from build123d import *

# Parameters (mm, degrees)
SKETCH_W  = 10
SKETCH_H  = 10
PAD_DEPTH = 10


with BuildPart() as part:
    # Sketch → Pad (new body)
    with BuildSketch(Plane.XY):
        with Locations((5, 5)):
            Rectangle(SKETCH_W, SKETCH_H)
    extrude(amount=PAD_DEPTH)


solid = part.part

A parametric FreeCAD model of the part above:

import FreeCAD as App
import Part
import Sketcher

V = App.Vector


def add_polygon(sketch, points):
    """Adds a closed chain of lines whose ends are joined by coincident constraints."""
    first, n = sketch.GeometryCount, len(points)
    for a, b in zip(points, points[1:] + points[:1]):
        sketch.addGeometry(Part.LineSegment(App.Vector(*a, 0), App.Vector(*b, 0)), False)
    for i in range(n):
        sketch.addConstraint(Sketcher.Constraint("Coincident", first + i, 2, first + (i + 1) % n, 1))

doc = App.newDocument("Part")
body = doc.addObject("PartDesign::Body", "Body")

sketch1 = body.newObject("Sketcher::SketchObject", "Sketch")
sketch1.AttachmentSupport = (doc.getObject("XY_Plane"), [""])
sketch1.MapMode = "FlatFace"
add_polygon(sketch1, [(0, 10), (0, 0), (10, 0), (10, 10)])
sketch1.addConstraint([
    Sketcher.Constraint("Vertical", 0),
    Sketcher.Constraint("Horizontal", 1),
    Sketcher.Constraint("Vertical", 2),
    Sketcher.Constraint("Horizontal", 3),
    Sketcher.Constraint("Coincident", 0, 2, -1, 1),
    Sketcher.Constraint("Equal", 3, 0),
    Sketcher.Constraint("DistanceX", 1, 1, 1, 2, 10.0),
])
pad1 = body.newObject("PartDesign::Pad", "Pad")
pad1.Profile = sketch1
pad1.Length = 10

doc.recompute()
